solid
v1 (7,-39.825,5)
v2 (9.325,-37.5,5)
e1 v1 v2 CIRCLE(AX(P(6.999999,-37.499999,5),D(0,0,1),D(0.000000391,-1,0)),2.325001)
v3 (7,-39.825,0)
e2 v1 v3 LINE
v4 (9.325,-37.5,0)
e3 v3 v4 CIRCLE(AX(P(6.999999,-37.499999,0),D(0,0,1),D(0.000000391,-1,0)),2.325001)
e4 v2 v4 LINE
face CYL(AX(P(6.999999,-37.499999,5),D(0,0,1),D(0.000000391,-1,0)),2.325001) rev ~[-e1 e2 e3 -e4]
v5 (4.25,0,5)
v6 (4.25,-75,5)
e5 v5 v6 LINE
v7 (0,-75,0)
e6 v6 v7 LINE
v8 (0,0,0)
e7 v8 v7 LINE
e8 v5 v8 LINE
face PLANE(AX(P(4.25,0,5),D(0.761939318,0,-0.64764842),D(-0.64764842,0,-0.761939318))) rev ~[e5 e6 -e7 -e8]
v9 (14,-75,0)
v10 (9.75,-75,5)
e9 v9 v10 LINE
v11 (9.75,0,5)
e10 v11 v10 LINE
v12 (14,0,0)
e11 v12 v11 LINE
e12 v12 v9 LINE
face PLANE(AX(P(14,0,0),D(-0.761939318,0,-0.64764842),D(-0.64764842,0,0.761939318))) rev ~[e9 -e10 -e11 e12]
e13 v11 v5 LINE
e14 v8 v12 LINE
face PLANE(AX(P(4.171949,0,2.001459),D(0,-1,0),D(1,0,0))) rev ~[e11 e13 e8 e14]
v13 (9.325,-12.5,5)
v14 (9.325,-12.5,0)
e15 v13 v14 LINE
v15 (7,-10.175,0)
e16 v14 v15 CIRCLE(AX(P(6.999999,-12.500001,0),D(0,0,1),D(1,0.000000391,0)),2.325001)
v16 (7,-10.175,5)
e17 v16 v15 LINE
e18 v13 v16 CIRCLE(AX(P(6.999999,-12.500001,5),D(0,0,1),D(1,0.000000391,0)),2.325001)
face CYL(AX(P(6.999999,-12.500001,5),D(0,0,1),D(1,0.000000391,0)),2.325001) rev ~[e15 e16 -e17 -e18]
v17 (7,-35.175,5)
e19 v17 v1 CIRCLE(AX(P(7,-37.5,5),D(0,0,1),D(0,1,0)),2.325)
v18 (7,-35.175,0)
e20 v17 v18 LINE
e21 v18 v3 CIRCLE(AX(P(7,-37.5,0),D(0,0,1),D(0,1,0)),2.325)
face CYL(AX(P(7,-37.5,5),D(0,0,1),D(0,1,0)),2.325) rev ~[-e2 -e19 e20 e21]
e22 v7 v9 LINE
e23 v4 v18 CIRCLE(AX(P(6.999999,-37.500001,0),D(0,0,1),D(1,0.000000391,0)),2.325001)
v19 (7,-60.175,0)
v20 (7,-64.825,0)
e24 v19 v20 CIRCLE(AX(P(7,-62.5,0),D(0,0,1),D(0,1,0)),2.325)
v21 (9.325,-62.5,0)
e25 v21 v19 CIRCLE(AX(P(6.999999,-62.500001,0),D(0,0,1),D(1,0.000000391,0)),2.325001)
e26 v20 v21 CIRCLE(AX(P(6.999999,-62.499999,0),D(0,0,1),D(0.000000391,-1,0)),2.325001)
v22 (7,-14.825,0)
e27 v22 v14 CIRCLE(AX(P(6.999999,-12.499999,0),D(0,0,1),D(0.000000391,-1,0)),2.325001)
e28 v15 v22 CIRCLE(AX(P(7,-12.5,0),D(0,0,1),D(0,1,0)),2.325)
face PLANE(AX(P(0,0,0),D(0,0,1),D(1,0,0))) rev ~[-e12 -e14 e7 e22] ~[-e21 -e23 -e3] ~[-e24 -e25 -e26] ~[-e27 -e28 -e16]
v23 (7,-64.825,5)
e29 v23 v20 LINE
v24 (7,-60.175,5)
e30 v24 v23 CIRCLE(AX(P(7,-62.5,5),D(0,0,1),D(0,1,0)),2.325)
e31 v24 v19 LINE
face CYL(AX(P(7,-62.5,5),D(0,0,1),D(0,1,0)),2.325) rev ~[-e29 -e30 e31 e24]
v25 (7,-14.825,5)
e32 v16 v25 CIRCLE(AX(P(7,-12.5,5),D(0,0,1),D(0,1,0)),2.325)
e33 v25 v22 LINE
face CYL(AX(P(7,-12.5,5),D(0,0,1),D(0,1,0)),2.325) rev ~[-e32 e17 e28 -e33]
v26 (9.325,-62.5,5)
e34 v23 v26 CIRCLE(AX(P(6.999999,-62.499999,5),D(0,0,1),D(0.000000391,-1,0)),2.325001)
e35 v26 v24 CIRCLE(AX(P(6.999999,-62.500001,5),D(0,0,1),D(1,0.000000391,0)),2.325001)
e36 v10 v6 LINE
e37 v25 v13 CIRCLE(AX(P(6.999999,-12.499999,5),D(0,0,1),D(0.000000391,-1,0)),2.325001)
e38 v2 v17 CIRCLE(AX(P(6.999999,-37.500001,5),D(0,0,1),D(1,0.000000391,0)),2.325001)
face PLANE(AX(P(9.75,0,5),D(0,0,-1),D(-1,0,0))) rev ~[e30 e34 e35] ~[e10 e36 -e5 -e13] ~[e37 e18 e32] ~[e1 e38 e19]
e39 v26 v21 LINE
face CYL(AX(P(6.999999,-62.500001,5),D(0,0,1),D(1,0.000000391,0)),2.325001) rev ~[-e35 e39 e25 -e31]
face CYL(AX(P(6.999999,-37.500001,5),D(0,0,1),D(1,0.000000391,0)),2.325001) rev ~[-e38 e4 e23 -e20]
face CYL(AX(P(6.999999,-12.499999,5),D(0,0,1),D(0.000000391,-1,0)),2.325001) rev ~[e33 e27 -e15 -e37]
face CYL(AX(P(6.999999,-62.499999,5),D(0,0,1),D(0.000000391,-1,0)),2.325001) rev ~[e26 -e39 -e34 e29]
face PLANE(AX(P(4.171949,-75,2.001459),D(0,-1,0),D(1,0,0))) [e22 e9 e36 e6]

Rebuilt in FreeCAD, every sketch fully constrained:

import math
import FreeCAD as App
import Part
import Sketcher
from FreeCAD import Vector

doc = App.newDocument("Part")
params = doc.addObject("Spreadsheet::Sheet", "Params")
for row, (alias, value) in enumerate([
    ("sketch1_width", "14 mm"),
    ("sketch1_width2", "5.5 mm"),
    ("pad1_length", "75 mm"),
], start=1):
    params.set(f"A{row}", alias)
    params.set(f"B{row}", "=" + value)
    params.setAlias(f"B{row}", alias)

body = doc.addObject("PartDesign::Body", "Body")

# Sketch on XZ plane
sketch1 = body.newObject("Sketcher::SketchObject", "Sketch")
sketch1.AttachmentSupport = (doc.getObject("XZ_Plane"), [""])
sketch1.MapMode = "FlatFace"
sketch1.addGeometry([
    Part.LineSegment(Vector(4.25, 5, 0), Vector(0, 0, 0)),
    Part.LineSegment(Vector(0, 0, 0), Vector(14, 0, 0)),
    Part.LineSegment(Vector(14, 0, 0), Vector(9.75, 5, 0)),
    Part.LineSegment(Vector(9.75, 5, 0), Vector(4.25, 5, 0)),
], False)
sketch1.addConstraint([
    Sketcher.Constraint("Coincident", 0, 2, 1, 1),
    Sketcher.Constraint("Coincident", 1, 2, 2, 1),
    Sketcher.Constraint("Coincident", 2, 2, 3, 1),
    Sketcher.Constraint("Coincident", 3, 2, 0, 1),
    Sketcher.Constraint("Horizontal", 1),
    Sketcher.Constraint("Horizontal", 3),
    Sketcher.Constraint("Coincident", 0, 2, -1, 1),
    Sketcher.Constraint("Equal", 0, 2),
    Sketcher.Constraint("DistanceX", 1, 1, 1, 2, 14.0),
    Sketcher.Constraint("DistanceX", 3, 2, 3, 1, 5.5),
    Sketcher.Constraint("DistanceY", -1, 1, 2, 2, 5.0),
])
sketch1.setExpression("Constraints[8]", "Params.sketch1_width")
sketch1.setExpression("Constraints[9]", "Params.sketch1_width2")
pad1 = body.newObject("PartDesign::Pad", "Pad")
pad1.Profile = sketch1
pad1.setExpression("Length", "Params.pad1_length")

# Sketch on XY plane
sketch2 = body.newObject("Sketcher::SketchObject", "Sketch001")
sketch2.AttachmentSupport = (doc.getObject("XY_Plane"), [""])
sketch2.MapMode = "FlatFace"
sketch2.AttachmentOffset = App.Placement(Vector(0, 0, 5), App.Rotation())
sketch2.addGeometry([
    Part.ArcOfCircle(Part.Circle(Vector(6.999999, -12.499999, 0), Vector(0, 0, 1), 2.325001), math.radians(-89.999978), math.radians(-0.000022)),  # 0
    Part.ArcOfCircle(Part.Circle(Vector(6.999999, -12.500001, 0), Vector(0, 0, 1), 2.325001), math.radians(0.000022), math.radians(89.999978)),  # 1
    Part.ArcOfCircle(Part.Circle(Vector(7, -12.5, 0), Vector(0, 0, 1), 2.325), math.radians(90), math.radians(270)),  # 2
    Part.ArcOfCircle(Part.Circle(Vector(6.999999, -62.500001, 0), Vector(0, 0, 1), 2.325001), math.radians(0.000022), math.radians(89.999978)),  # 3
    Part.ArcOfCircle(Part.Circle(Vector(7, -62.5, 0), Vector(0, 0, 1), 2.325), math.radians(90), math.radians(270)),  # 4
    Part.ArcOfCircle(Part.Circle(Vector(6.999999, -62.499999, 0), Vector(0, 0, 1), 2.325001), math.radians(-89.999978), math.radians(-0.000022)),  # 5
    Part.ArcOfCircle(Part.Circle(Vector(6.999999, -37.500001, 0), Vector(0, 0, 1), 2.325001), math.radians(0.000022), math.radians(89.999978)),  # 6
    Part.ArcOfCircle(Part.Circle(Vector(7, -37.5, 0), Vector(0, 0, 1), 2.325), math.radians(90), math.radians(270)),  # 7
    Part.ArcOfCircle(Part.Circle(Vector(6.999999, -37.499999, 0), Vector(0, 0, 1), 2.325001), math.radians(-89.999978), math.radians(-0.000022)),  # 8
], False)
sketch2.addConstraint([
    Sketcher.Constraint("Tangent", 0, 2, 1, 1),
    Sketcher.Constraint("Tangent", 1, 2, 2, 1),
    Sketcher.Constraint("Tangent", 2, 2, 0, 1),
    Sketcher.Constraint("Tangent", 3, 2, 4, 1),
    Sketcher.Constraint("Tangent", 4, 2, 5, 1),
    Sketcher.Constraint("Tangent", 5, 2, 3, 1),
    Sketcher.Constraint("Tangent", 6, 2, 7, 1),
    Sketcher.Constraint("Tangent", 7, 2, 8, 1),
    Sketcher.Constraint("Tangent", 8, 2, 6, 1),
    Sketcher.Constraint("Equal", 2, 3),
    Sketcher.Constraint("Equal", 5, 6),
    Sketcher.Constraint("Horizontal", 2, 3, 0, 2),
    Sketcher.Constraint("Horizontal", 4, 3, 5, 2),
    Sketcher.Constraint("Horizontal", 7, 3, 8, 2),
    Sketcher.Constraint("Vertical", 2, 3, 3, 3),
    Sketcher.Constraint("Vertical", 5, 3, 6, 3),
    Sketcher.Constraint("Vertical", 8, 3, 1, 2),
    Sketcher.Constraint("Vertical", 1, 2, 2, 2),
    Sketcher.Constraint("Vertical", 2, 2, 3, 2),
    Sketcher.Constraint("Vertical", 3, 2, 4, 2),
    Sketcher.Constraint("Vertical", 4, 2, 6, 2),
    Sketcher.Constraint("Vertical", 6, 2, 7, 2),
    Sketcher.Constraint("DistanceX", -1, 1, 0, 3, 6.999999),
    Sketcher.Constraint("Radius", 0, 2.325001),
    Sketcher.Constraint("DistanceY", 3, 3, 1, 3, 50.0),
    Sketcher.Constraint("DistanceY", 5, 3, 6, 3, 24.999998),
    Sketcher.Constraint("DistanceY", 0, 3, -1, 1, 12.499999),
])
pocket1 = body.newObject("PartDesign::Pocket", "Pocket")
pocket1.Profile = sketch2
pocket1.Type = "ThroughAll"

doc.recompute()
